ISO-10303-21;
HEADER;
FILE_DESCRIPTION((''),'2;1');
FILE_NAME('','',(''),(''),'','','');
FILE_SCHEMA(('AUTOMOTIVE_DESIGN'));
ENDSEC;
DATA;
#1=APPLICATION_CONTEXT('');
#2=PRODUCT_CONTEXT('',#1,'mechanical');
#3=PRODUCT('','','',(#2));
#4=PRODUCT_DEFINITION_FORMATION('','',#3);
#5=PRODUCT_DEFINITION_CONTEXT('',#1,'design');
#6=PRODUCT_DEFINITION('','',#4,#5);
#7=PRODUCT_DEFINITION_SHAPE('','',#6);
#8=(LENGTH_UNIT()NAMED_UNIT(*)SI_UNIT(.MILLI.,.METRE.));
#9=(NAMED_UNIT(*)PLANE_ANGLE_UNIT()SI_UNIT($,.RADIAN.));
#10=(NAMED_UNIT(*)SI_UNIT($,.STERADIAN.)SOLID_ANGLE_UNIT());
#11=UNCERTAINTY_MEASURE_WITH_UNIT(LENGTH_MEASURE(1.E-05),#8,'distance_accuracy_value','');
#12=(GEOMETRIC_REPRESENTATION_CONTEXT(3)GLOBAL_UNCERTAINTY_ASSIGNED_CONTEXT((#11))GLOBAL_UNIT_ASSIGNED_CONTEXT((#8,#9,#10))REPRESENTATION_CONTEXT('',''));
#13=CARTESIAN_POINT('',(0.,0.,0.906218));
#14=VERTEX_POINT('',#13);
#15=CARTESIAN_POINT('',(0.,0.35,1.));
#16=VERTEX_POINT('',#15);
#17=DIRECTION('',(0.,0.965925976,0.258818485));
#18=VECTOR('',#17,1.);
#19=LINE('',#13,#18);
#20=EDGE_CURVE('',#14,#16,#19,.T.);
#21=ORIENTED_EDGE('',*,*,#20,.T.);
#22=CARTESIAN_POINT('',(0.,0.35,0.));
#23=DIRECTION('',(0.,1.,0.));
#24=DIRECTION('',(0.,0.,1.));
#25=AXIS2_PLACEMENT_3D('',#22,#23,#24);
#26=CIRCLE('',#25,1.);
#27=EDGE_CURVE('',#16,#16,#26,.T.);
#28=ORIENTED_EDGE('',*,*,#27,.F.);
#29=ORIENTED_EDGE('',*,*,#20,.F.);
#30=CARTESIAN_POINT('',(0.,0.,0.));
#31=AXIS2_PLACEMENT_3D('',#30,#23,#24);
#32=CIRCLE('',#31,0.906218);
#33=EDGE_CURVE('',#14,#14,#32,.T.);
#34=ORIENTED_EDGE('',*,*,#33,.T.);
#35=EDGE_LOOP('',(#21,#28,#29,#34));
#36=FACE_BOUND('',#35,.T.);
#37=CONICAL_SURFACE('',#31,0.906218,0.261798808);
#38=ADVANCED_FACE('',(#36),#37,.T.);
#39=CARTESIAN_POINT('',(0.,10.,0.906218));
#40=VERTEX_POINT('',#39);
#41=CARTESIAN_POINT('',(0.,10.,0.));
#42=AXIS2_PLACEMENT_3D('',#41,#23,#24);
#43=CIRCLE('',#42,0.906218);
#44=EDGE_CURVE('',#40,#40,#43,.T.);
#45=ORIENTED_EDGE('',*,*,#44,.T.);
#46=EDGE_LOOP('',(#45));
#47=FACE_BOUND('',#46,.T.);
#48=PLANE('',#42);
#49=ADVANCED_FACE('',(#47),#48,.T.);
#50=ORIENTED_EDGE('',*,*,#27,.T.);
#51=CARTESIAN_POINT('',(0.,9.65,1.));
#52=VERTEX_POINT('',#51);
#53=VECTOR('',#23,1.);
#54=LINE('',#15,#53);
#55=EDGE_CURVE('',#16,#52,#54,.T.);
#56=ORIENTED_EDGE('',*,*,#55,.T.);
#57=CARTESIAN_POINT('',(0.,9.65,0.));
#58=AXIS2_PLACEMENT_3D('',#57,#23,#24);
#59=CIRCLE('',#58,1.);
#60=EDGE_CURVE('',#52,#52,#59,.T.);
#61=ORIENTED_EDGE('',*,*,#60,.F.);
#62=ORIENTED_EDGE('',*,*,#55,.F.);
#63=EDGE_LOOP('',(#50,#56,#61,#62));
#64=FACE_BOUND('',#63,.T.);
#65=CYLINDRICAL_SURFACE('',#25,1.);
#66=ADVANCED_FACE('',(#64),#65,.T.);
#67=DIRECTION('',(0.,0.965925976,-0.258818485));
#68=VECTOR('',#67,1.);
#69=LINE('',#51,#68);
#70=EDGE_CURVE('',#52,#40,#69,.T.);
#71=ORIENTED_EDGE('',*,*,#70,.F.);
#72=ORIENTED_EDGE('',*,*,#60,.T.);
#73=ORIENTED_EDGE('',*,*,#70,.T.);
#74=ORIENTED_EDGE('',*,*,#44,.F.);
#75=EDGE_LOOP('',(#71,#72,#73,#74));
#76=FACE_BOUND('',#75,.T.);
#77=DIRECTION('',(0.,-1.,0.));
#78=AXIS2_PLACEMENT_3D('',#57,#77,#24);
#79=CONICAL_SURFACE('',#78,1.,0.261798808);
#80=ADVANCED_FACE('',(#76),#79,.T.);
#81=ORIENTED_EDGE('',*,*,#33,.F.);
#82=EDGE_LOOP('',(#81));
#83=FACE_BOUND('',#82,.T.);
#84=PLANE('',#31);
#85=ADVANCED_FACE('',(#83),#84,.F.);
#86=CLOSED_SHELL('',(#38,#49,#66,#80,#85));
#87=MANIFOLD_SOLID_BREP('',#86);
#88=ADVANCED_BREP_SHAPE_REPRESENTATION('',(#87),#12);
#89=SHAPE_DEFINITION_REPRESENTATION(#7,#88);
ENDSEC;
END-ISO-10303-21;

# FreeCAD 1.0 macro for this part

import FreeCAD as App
import Part
import Sketcher

doc = App.newDocument("Part")
body = doc.addObject("PartDesign::Body", "Body")

# Sketch on YZ plane
sketch1 = doc.addObject("Sketcher::SketchObject", "Sketch")
body.addObject(sketch1)
sketch1.AttachmentSupport = (doc.YZ_Plane, [""])
sketch1.MapMode = "FlatFace"
sketch1.addGeometry([
    Part.LineSegment(App.Vector(0, 0.91, 0), App.Vector(0, 0, 0)),  # 0
    Part.LineSegment(App.Vector(0, 0, 0), App.Vector(10, 0, 0)),  # 1
    Part.LineSegment(App.Vector(10, 0, 0), App.Vector(10, 0.91, 0)),  # 2
    Part.LineSegment(App.Vector(10, 0.91, 0), App.Vector(9.65, 1, 0)),  # 3
    Part.LineSegment(App.Vector(9.65, 1, 0), App.Vector(0.35, 1, 0)),  # 4
    Part.LineSegment(App.Vector(0.35, 1, 0), App.Vector(0, 0.91, 0)),  # 5
], False)
sketch1.addConstraint([
    Sketcher.Constraint("Coincident", 0, 2, 1, 1),
    Sketcher.Constraint("Coincident", 1, 2, 2, 1),
    Sketcher.Constraint("Coincident", 2, 2, 3, 1),
    Sketcher.Constraint("Coincident", 3, 2, 4, 1),
    Sketcher.Constraint("Coincident", 4, 2, 5, 1),
    Sketcher.Constraint("Coincident", 5, 2, 0, 1),
    Sketcher.Constraint("Vertical", 0),
    Sketcher.Constraint("Horizontal", 1),
    Sketcher.Constraint("Vertical", 2),
    Sketcher.Constraint("Horizontal", 4),
    Sketcher.Constraint("Coincident", 0, 2, -1, 1),
    Sketcher.Constraint("Horizontal", 2, 2, 5, 2),
    Sketcher.Constraint("Equal", 3, 5),
    Sketcher.Constraint("DistanceX", 1, 1, 1, 2, 10.0),
    Sketcher.Constraint("DistanceX", 4, 2, 4, 1, 9.3),
    Sketcher.Constraint("DistanceY", -1, 1, 3, 2, 1.0),
    Sketcher.Constraint("DistanceY", 0, 2, 0, 1, 0.906218),
])
revolution = doc.addObject("PartDesign::Revolution", "Revolution")
body.addObject(revolution)
revolution.Profile = sketch1
revolution.ReferenceAxis = (sketch1, ["H_Axis"])
revolution.Angle = 360

doc.recompute()
